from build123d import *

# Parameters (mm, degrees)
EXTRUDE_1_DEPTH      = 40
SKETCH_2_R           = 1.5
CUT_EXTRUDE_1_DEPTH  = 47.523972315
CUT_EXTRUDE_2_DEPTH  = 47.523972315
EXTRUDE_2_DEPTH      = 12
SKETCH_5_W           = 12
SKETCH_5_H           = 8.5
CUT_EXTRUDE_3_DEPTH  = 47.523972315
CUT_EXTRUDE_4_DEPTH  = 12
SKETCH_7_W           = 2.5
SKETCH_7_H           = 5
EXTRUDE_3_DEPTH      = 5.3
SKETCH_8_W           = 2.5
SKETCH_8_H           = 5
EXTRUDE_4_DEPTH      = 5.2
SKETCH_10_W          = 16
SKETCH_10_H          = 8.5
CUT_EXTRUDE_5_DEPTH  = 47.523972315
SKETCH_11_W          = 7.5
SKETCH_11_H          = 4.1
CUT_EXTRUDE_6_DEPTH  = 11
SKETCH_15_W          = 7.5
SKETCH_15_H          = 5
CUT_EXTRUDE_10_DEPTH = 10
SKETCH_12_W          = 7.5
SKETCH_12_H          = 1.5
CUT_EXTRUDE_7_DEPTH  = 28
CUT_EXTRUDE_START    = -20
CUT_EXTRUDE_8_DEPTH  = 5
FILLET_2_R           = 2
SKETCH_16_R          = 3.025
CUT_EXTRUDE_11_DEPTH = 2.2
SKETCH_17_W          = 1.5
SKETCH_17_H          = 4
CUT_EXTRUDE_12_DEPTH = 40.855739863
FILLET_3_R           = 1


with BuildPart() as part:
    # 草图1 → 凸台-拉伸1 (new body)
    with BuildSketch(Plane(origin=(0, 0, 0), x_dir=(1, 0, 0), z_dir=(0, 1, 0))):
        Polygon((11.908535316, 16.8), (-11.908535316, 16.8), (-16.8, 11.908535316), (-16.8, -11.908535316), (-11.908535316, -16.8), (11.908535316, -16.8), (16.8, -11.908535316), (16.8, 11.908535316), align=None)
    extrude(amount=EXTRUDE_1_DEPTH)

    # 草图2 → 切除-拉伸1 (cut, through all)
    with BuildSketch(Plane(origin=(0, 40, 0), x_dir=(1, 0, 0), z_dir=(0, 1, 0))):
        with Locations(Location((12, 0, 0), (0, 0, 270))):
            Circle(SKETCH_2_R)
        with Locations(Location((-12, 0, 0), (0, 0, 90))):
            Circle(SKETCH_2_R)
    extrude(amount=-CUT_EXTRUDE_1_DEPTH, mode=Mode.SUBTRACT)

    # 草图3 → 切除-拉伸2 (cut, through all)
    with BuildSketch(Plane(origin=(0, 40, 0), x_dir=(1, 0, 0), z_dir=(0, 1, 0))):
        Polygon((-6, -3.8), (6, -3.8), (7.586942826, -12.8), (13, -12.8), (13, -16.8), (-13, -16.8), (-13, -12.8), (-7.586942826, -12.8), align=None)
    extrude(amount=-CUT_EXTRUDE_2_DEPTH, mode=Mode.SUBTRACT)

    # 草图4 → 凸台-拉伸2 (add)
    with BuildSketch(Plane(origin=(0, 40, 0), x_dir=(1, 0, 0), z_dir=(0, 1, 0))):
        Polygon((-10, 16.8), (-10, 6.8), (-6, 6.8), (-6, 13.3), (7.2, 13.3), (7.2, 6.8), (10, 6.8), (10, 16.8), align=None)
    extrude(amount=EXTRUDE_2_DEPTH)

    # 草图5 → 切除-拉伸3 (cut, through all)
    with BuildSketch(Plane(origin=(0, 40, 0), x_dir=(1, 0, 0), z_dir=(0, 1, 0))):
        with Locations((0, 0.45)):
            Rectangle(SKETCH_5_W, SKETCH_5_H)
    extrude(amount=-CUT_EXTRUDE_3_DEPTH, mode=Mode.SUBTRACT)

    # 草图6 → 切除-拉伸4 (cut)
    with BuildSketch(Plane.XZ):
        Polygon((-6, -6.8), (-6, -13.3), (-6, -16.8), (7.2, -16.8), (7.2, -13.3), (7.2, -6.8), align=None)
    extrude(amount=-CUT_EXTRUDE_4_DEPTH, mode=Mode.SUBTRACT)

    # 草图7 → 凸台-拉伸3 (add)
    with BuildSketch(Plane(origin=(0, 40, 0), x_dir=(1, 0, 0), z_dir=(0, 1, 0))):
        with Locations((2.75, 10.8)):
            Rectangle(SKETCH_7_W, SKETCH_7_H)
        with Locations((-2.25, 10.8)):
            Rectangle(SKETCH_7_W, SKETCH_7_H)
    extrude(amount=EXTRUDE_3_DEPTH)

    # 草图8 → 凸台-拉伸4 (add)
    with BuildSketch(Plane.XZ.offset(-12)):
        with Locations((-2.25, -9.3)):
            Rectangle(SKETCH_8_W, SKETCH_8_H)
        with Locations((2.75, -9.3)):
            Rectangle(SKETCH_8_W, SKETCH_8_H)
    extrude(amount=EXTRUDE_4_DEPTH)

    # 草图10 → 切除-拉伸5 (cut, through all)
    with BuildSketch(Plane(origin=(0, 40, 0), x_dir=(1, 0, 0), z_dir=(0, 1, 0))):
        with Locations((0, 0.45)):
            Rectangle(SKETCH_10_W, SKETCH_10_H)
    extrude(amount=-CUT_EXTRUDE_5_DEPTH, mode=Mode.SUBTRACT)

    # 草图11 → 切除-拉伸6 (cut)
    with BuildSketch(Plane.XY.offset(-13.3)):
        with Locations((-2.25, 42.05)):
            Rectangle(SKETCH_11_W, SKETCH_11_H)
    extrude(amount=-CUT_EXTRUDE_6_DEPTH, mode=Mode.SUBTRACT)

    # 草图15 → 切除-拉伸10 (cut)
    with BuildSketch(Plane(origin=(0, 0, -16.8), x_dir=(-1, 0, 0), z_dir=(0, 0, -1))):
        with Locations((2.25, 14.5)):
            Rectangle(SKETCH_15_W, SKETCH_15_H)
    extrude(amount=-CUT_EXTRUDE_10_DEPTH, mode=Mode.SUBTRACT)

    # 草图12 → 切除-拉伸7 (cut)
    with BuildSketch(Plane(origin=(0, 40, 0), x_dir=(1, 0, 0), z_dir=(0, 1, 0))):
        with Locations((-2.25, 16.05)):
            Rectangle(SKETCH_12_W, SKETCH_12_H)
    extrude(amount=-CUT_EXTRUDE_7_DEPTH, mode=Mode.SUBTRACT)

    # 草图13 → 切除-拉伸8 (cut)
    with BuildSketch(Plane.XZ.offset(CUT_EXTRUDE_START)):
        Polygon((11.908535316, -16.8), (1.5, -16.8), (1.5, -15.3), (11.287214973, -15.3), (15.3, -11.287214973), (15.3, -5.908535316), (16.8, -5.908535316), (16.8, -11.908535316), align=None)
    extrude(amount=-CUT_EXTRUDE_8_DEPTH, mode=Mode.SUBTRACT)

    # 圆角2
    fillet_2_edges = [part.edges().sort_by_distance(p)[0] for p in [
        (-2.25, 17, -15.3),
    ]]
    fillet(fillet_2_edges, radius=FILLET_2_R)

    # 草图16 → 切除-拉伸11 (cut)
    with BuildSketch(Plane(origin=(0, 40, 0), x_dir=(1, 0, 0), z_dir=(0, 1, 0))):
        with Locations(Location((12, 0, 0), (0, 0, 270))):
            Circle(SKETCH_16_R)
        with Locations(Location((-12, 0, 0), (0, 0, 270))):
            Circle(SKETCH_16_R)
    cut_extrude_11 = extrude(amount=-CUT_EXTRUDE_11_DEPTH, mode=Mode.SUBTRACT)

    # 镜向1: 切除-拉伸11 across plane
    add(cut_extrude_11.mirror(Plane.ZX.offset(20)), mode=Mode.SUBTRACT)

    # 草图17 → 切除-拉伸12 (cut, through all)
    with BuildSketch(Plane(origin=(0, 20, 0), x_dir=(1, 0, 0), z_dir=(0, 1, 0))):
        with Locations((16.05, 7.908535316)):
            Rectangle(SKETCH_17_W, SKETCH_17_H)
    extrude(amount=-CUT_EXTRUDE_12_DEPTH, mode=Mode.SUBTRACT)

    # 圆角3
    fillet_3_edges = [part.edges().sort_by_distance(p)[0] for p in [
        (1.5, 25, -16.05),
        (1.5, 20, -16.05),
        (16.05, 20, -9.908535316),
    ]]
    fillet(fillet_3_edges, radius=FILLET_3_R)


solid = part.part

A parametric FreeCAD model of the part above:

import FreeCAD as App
import Part
import Sketcher
Q = App.Units.Quantity


def edges_at(feature, points):
    """Names of the edges that pass closest to the given points."""
    edges = feature.Shape.Edges
    near = lambda p: min(range(len(edges)), key=lambda i: edges[i].distToShape(Part.Vertex(*p))[0])
    return sorted({f"Edge{near(p) + 1}" for p in points})


def add_polygon(sketch, points):
    """Adds a closed chain of lines whose ends are joined by coincident constraints."""
    first, n = sketch.GeometryCount, len(points)
    for a, b in zip(points, points[1:] + points[:1]):
        sketch.addGeometry(Part.LineSegment(App.Vector(*a, 0), App.Vector(*b, 0)), False)
    for i in range(n):
        sketch.addConstraint(Sketcher.Constraint("Coincident", first + i, 2, first + (i + 1) % n, 1))

doc = App.newDocument("Part")
body = doc.addObject("PartDesign::Body", "Body")

sketch1 = body.newObject("Sketcher::SketchObject", "Sketch")
sketch1.AttachmentSupport = (doc.getObject("XZ_Plane"), [""])
sketch1.MapMode = "FlatFace"
add_polygon(sketch1, [(11.908535, -16.8), (-11.908535, -16.8), (-16.8, -11.908535), (-16.8, 11.908535), (-11.908535, 16.8), (11.908535, 16.8), (16.8, 11.908535), (16.8, -11.908535)])
sketch1.addConstraint([
    Sketcher.Constraint("Horizontal", 0),
    Sketcher.Constraint("Vertical", 2),
    Sketcher.Constraint("Horizontal", 4),
    Sketcher.Constraint("Vertical", 6),
    Sketcher.Constraint("Symmetric", 0, 2, 4, 2, -1, 1),
    Sketcher.Constraint("Symmetric", 1, 2, 5, 2, -1, 1),
    Sketcher.Constraint("Perpendicular", 1, 3),
    Sketcher.Constraint("Perpendicular", 5, 7),
    Sketcher.Constraint("Horizontal", 2, 2, 5, 2),
    Sketcher.Constraint("Horizontal", 1, 2, 6, 2),
    Sketcher.Constraint("Vertical", 0, 2, 3, 2),
    Sketcher.Constraint("Equal", 4, 2),
    Sketcher.Constraint("DistanceY", 0, 2, -1, 1, 16.8),
    Sketcher.Constraint("DistanceX", 0, 2, 0, 1, 23.817071),
])
pad1 = body.newObject("PartDesign::Pad", "Pad")
pad1.Profile = sketch1
pad1.Length = 40
pad1.Reversed = True

sketch2 = body.newObject("Sketcher::SketchObject", "Sketch001")
sketch2.AttachmentSupport = (doc.getObject("XZ_Plane"), [""])
sketch2.MapMode = "FlatFace"
sketch2.AttachmentOffset = App.Placement(App.Vector(0, 0, -40), App.Rotation())
sketch2.addGeometry([
    Part.Circle(App.Vector(12, 0, 0), App.Vector(0, 0, 1), 1.5),
    Part.Circle(App.Vector(-12, 0, 0), App.Vector(0, 0, 1), 1.5),
], False)
sketch2.addConstraint([
    Sketcher.Constraint("Equal", 0, 1),
    Sketcher.Constraint("Symmetric", 0, 3, 1, 3, -1, 1),
    Sketcher.Constraint("PointOnObject", 0, 3, -1),
    Sketcher.Constraint("Diameter", 0, 3.0),
    Sketcher.Constraint("DistanceX", -1, 1, 0, 3, 12.0),
])
pocket1 = body.newObject("PartDesign::Pocket", "Pocket")
pocket1.Profile = sketch2
pocket1.Type = "ThroughAll"
pocket1.Reversed = True

sketch3 = body.newObject("Sketcher::SketchObject", "Sketch002")
sketch3.AttachmentSupport = (doc.getObject("XZ_Plane"), [""])
sketch3.MapMode = "FlatFace"
sketch3.AttachmentOffset = App.Placement(App.Vector(0, 0, -40), App.Rotation())
add_polygon(sketch3, [(6, 3.8), (-6, 3.8), (-7.586943, 12.8), (-13, 12.8), (-13, 16.8), (13, 16.8), (13, 12.8), (7.586943, 12.8)])
sketch3.addConstraint([
    Sketcher.Constraint("Horizontal", 0),
    Sketcher.Constraint("Horizontal", 2),
    Sketcher.Constraint("Vertical", 3),
    Sketcher.Constraint("Horizontal", 4),
    Sketcher.Constraint("Vertical", 5),
    Sketcher.Constraint("Horizontal", 6),
    Sketcher.Constraint("Symmetric", 2, 2, 5, 2, -2),
    Sketcher.Constraint("Equal", 2, 6),
    Sketcher.Constraint("Equal", 1, 7),
    Sketcher.Constraint("DistanceX", 0, 2, 0, 1, 12.0),
    Sketcher.Constraint("DistanceX", 4, 1, 4, 2, 26.0),
    Sketcher.Constraint("DistanceY", 3, 1, 3, 2, 4.0),
    Sketcher.Constraint("Angle", 1, Q("100 deg")),
    Sketcher.Constraint("DistanceY", 0, 2, 1, 2, 9.0),
    Sketcher.Constraint("DistanceY", -1, 1, 0, 2, 3.8),
])
pocket2 = body.newObject("PartDesign::Pocket", "Pocket001")
pocket2.Profile = sketch3
pocket2.Type = "ThroughAll"
pocket2.Reversed = True

sketch4 = body.newObject("Sketcher::SketchObject", "Sketch003")
sketch4.AttachmentSupport = (doc.getObject("XZ_Plane"), [""])
sketch4.MapMode = "FlatFace"
sketch4.AttachmentOffset = App.Placement(App.Vector(0, 0, -40), App.Rotation())
add_polygon(sketch4, [(-10, -16.8), (-10, -6.8), (-6, -6.8), (-6, -13.3), (7.2, -13.3), (7.2, -6.8), (10, -6.8), (10, -16.8)])
sketch4.addConstraint([
    Sketcher.Constraint("Vertical", 0),
    Sketcher.Constraint("Horizontal", 1),
    Sketcher.Constraint("Vertical", 2),
    Sketcher.Constraint("Horizontal", 3),
    Sketcher.Constraint("Vertical", 4),
    Sketcher.Constraint("Horizontal", 5),
    Sketcher.Constraint("Vertical", 6),
    Sketcher.Constraint("Horizontal", 7),
    Sketcher.Constraint("Symmetric", 0, 2, 5, 2, -2),
    Sketcher.Constraint("DistanceX", 1, 1, 1, 2, 4.0),
    Sketcher.Constraint("DistanceX", 7, 2, 7, 1, 20.0),
    Sketcher.Constraint("DistanceY", 0, 1, 0, 2, 10.0),
    Sketcher.Constraint("DistanceX", 3, 1, 3, 2, 13.2),
    Sketcher.Constraint("DistanceY", 2, 2, 2, 1, 6.5),
    Sketcher.Constraint("DistanceY", 0, 2, -1, 1, 6.8),
])
pad2 = body.newObject("PartDesign::Pad", "Pad001")
pad2.Profile = sketch4
pad2.Length = 12
pad2.Reversed = True

sketch5 = body.newObject("Sketcher::SketchObject", "Sketch004")
sketch5.AttachmentSupport = (doc.getObject("XZ_Plane"), [""])
sketch5.MapMode = "FlatFace"
sketch5.AttachmentOffset = App.Placement(App.Vector(0, 0, -40), App.Rotation())
add_polygon(sketch5, [(-6, -4.7), (-6, 3.8), (6, 3.8), (6, -4.7)])
sketch5.addConstraint([
    Sketcher.Constraint("Vertical", 0),
    Sketcher.Constraint("Horizontal", 1),
    Sketcher.Constraint("Vertical", 2),
    Sketcher.Constraint("Horizontal", 3),
    Sketcher.Constraint("DistanceX", 1, 1, 1, 2, 12.0),
    Sketcher.Constraint("DistanceY", 0, 1, 0, 2, 8.5),
    Sketcher.Constraint("DistanceX", 0, 2, -1, 1, 6.0),
    Sketcher.Constraint("DistanceY", -1, 1, 0, 2, 3.8),
])
pocket3 = body.newObject("PartDesign::Pocket", "Pocket002")
pocket3.Profile = sketch5
pocket3.Type = "ThroughAll"
pocket3.Reversed = True

sketch6 = body.newObject("Sketcher::SketchObject", "Sketch005")
sketch6.AttachmentSupport = (doc.getObject("XZ_Plane"), [""])
sketch6.MapMode = "FlatFace"
add_polygon(sketch6, [(-6, -6.8), (-6, -16.8), (7.2, -16.8), (7.2, -6.8)])
sketch6.addConstraint([
    Sketcher.Constraint("Vertical", 0),
    Sketcher.Constraint("Horizontal", 1),
    Sketcher.Constraint("Vertical", 2),
    Sketcher.Constraint("Horizontal", 3),
    Sketcher.Constraint("DistanceY", 0, 2, 0, 1, 10.0),
    Sketcher.Constraint("DistanceX", 1, 1, 1, 2, 13.2),
    Sketcher.Constraint("DistanceX", 0, 2, -1, 1, 6.0),
    Sketcher.Constraint("DistanceY", 0, 2, -1, 1, 16.8),
])
pocket4 = body.newObject("PartDesign::Pocket", "Pocket003")
pocket4.Profile = sketch6
pocket4.Length = 12

sketch7 = body.newObject("Sketcher::SketchObject", "Sketch006")
sketch7.AttachmentSupport = (doc.getObject("XZ_Plane"), [""])
sketch7.MapMode = "FlatFace"
sketch7.AttachmentOffset = App.Placement(App.Vector(0, 0, -40), App.Rotation())
add_polygon(sketch7, [(1.5, -13.3), (1.5, -8.3), (4, -8.3), (4, -13.3)])
add_polygon(sketch7, [(-3.5, -13.3), (-3.5, -8.3), (-1, -8.3), (-1, -13.3)])
sketch7.addConstraint([
    Sketcher.Constraint("Vertical", 0),
    Sketcher.Constraint("Horizontal", 1),
    Sketcher.Constraint("Vertical", 2),
    Sketcher.Constraint("Horizontal", 3),
    Sketcher.Constraint("Vertical", 4),
    Sketcher.Constraint("Horizontal", 5),
    Sketcher.Constraint("Vertical", 6),
    Sketcher.Constraint("Horizontal", 7),
    Sketcher.Constraint("Horizontal", 1, 2, 4, 2),
    Sketcher.Constraint("Horizontal", 3, 2, 6, 2),
    Sketcher.Constraint("Equal", 3, 5),
    Sketcher.Constraint("DistanceY", 0, 1, 0, 2, 5.0),
    Sketcher.Constraint("DistanceX", 1, 1, 1, 2, 2.5),
    Sketcher.Constraint("DistanceX", -1, 1, 1, 2, 4.0),
    Sketcher.Constraint("DistanceX", 5, 2, -1, 1, 1.0),
    Sketcher.Constraint("DistanceY", 0, 2, -1, 1, 8.3),
])
pad3 = body.newObject("PartDesign::Pad", "Pad002")
pad3.Profile = sketch7
pad3.Length = 5.3
pad3.Reversed = True

sketch8 = body.newObject("Sketcher::SketchObject", "Sketch007")
sketch8.AttachmentSupport = (doc.getObject("XZ_Plane"), [""])
sketch8.MapMode = "FlatFace"
sketch8.AttachmentOffset = App.Placement(App.Vector(0, 0, -12), App.Rotation())
add_polygon(sketch8, [(-3.5, -6.8), (-3.5, -11.8), (-1, -11.8), (-1, -6.8)])
add_polygon(sketch8, [(1.5, -6.8), (1.5, -11.8), (4, -11.8), (4, -6.8)])
sketch8.addConstraint([
    Sketcher.Constraint("Vertical", 0),
    Sketcher.Constraint("Horizontal", 1),
    Sketcher.Constraint("Vertical", 2),
    Sketcher.Constraint("Horizontal", 3),
    Sketcher.Constraint("Vertical", 4),
    Sketcher.Constraint("Horizontal", 5),
    Sketcher.Constraint("Vertical", 6),
    Sketcher.Constraint("Horizontal", 7),
    Sketcher.Constraint("Horizontal", 1, 2, 4, 2),
    Sketcher.Constraint("Horizontal", 3, 2, 6, 2),
    Sketcher.Constraint("Equal", 3, 5),
    Sketcher.Constraint("DistanceY", 0, 2, 0, 1, 5.0),
    Sketcher.Constraint("DistanceX", 1, 1, 1, 2, 2.5),
    Sketcher.Constraint("DistanceX", 1, 2, -1, 1, 1.0),
    Sketcher.Constraint("DistanceX", -1, 1, 5, 2, 4.0),
    Sketcher.Constraint("DistanceY", 0, 2, -1, 1, 11.8),
])
pad4 = body.newObject("PartDesign::Pad", "Pad003")
pad4.Profile = sketch8
pad4.Length = 5.2

sketch9 = body.newObject("Sketcher::SketchObject", "Sketch008")
sketch9.AttachmentSupport = (doc.getObject("XZ_Plane"), [""])
sketch9.MapMode = "FlatFace"
sketch9.AttachmentOffset = App.Placement(App.Vector(0, 0, -40), App.Rotation())
add_polygon(sketch9, [(-8, -4.7), (-8, 3.8), (8, 3.8), (8, -4.7)])
sketch9.addConstraint([
    Sketcher.Constraint("Vertical", 0),
    Sketcher.Constraint("Horizontal", 1),
    Sketcher.Constraint("Vertical", 2),
    Sketcher.Constraint("Horizontal", 3),
    Sketcher.Constraint("DistanceX", 1, 1, 1, 2, 16.0),
    Sketcher.Constraint("DistanceY", 0, 1, 0, 2, 8.5),
    Sketcher.Constraint("DistanceX", 0, 2, -1, 1, 8.0),
    Sketcher.Constraint("DistanceY", -1, 1, 0, 2, 3.8),
])
pocket5 = body.newObject("PartDesign::Pocket", "Pocket004")
pocket5.Profile = sketch9
pocket5.Type = "ThroughAll"
pocket5.Reversed = True

sketch10 = body.newObject("Sketcher::SketchObject", "Sketch009")
sketch10.AttachmentSupport = (doc.getObject("XY_Plane"), [""])
sketch10.MapMode = "FlatFace"
sketch10.AttachmentOffset = App.Placement(App.Vector(0, 0, -13.3), App.Rotation())
add_polygon(sketch10, [(-6, 44.1), (-6, 40), (1.5, 40), (1.5, 44.1)])
sketch10.addConstraint([
    Sketcher.Constraint("Vertical", 0),
    Sketcher.Constraint("Horizontal", 1),
    Sketcher.Constraint("Vertical", 2),
    Sketcher.Constraint("Horizontal", 3),
    Sketcher.Constraint("DistanceX", 1, 1, 1, 2, 7.5),
    Sketcher.Constraint("DistanceY", 0, 2, 0, 1, 4.1),
    Sketcher.Constraint("DistanceX", 0, 2, -1, 1, 6.0),
    Sketcher.Constraint("DistanceY", -1, 1, 0, 2, 40.0),
])
pocket6 = body.newObject("PartDesign::Pocket", "Pocket005")
pocket6.Profile = sketch10
pocket6.Length = 11

sketch11 = body.newObject("Sketcher::SketchObject", "Sketch010")
sketch11.AttachmentSupport = (doc.getObject("XY_Plane"), [""])
sketch11.MapMode = "FlatFace"
sketch11.AttachmentOffset = App.Placement(App.Vector(0, 0, -16.8), App.Rotation())
add_polygon(sketch11, [(1.5, 17), (1.5, 12), (-6, 12), (-6, 17)])
sketch11.addConstraint([
    Sketcher.Constraint("Vertical", 0),
    Sketcher.Constraint("Horizontal", 1),
    Sketcher.Constraint("Vertical", 2),
    Sketcher.Constraint("Horizontal", 3),
    Sketcher.Constraint("DistanceY", 0, 2, 0, 1, 5.0),
    Sketcher.Constraint("DistanceX", 1, 2, 1, 1, 7.5),
    Sketcher.Constraint("DistanceY", -1, 1, 0, 2, 12.0),
    Sketcher.Constraint("DistanceX", 1, 2, -1, 1, 6.0),
])
pocket7 = body.newObject("PartDesign::Pocket", "Pocket006")
pocket7.Profile = sketch11
pocket7.Length = 10
pocket7.Reversed = True

sketch12 = body.newObject("Sketcher::SketchObject", "Sketch011")
sketch12.AttachmentSupport = (doc.getObject("XZ_Plane"), [""])
sketch12.MapMode = "FlatFace"
sketch12.AttachmentOffset = App.Placement(App.Vector(0, 0, -40), App.Rotation())
add_polygon(sketch12, [(-6, -16.8), (-6, -15.3), (1.5, -15.3), (1.5, -16.8)])
sketch12.addConstraint([
    Sketcher.Constraint("Vertical", 0),
    Sketcher.Constraint("Horizontal", 1),
    Sketcher.Constraint("Vertical", 2),
    Sketcher.Constraint("Horizontal", 3),
    Sketcher.Constraint("DistanceX", 1, 1, 1, 2, 7.5),
    Sketcher.Constraint("DistanceY", 0, 1, 0, 2, 1.5),
    Sketcher.Constraint("DistanceX", 0, 2, -1, 1, 6.0),
    Sketcher.Constraint("DistanceY", 0, 2, -1, 1, 15.3),
])
pocket8 = body.newObject("PartDesign::Pocket", "Pocket007")
pocket8.Profile = sketch12
pocket8.Length = 28
pocket8.Reversed = True

sketch13 = body.newObject("Sketcher::SketchObject", "Sketch012")
sketch13.AttachmentSupport = (doc.getObject("XZ_Plane"), [""])
sketch13.MapMode = "FlatFace"
sketch13.AttachmentOffset = App.Placement(App.Vector(0, 0, -20), App.Rotation())
add_polygon(sketch13, [(1.5, -16.8), (11.908535, -16.8), (16.8, -11.908535), (16.8, -5.908535), (15.3, -5.908535), (15.3, -11.287215), (11.287215, -15.3), (1.5, -15.3)])
sketch13.addConstraint([
    Sketcher.Constraint("Horizontal", 0),
    Sketcher.Constraint("Vertical", 2),
    Sketcher.Constraint("Horizontal", 3),
    Sketcher.Constraint("Vertical", 4),
    Sketcher.Constraint("Horizontal", 6),
    Sketcher.Constraint("Vertical", 7),
    Sketcher.Constraint("Parallel", 1, 5),
    Sketcher.Constraint("Equal", 3, 7),
    Sketcher.Constraint("DistanceY", 2, 1, 2, 2, 6.0),
    Sketcher.Constraint("Angle", 1, Q("45 deg")),
    Sketcher.Constraint("DistanceX", 3, 2, 3, 1, 1.5),
    Sketcher.Constraint("DistanceY", 0, 2, -1, 1, 16.8),
    Sketcher.Constraint("DistanceX", -1, 1, 1, 2, 16.8),
    Sketcher.Constraint("DistanceX", -1, 1, 6, 2, 1.5),
    Sketcher.Constraint("DistanceY", 4, 2, 4, 1, 5.37868),
    Sketcher.Constraint("DistanceX", 0, 1, 0, 2, 10.408535),
])
pocket9 = body.newObject("PartDesign::Pocket", "Pocket008")
pocket9.Profile = sketch13
pocket9.Length = 5
doc.recompute()

fillet = body.newObject("PartDesign::Fillet", "Fillet")
fillet.Base = (pocket9, edges_at(pocket9, [(-2.25, 17, -15.3)]))
fillet.Radius = 2

sketch14 = body.newObject("Sketcher::SketchObject", "Sketch013")
sketch14.AttachmentSupport = (doc.getObject("XZ_Plane"), [""])
sketch14.MapMode = "FlatFace"
sketch14.AttachmentOffset = App.Placement(App.Vector(0, 0, -40), App.Rotation())
sketch14.addGeometry([
    Part.Circle(App.Vector(12, 0, 0), App.Vector(0, 0, 1), 3.025),
    Part.Circle(App.Vector(-12, 0, 0), App.Vector(0, 0, 1), 3.025),
], False)
sketch14.addConstraint([
    Sketcher.Constraint("Equal", 0, 1),
    Sketcher.Constraint("Symmetric", 0, 3, 1, 3, -1, 1),
    Sketcher.Constraint("PointOnObject", 0, 3, -1),
    Sketcher.Constraint("Diameter", 0, 6.05),
    Sketcher.Constraint("DistanceX", -1, 1, 0, 3, 12.0),
])
pocket10 = body.newObject("PartDesign::Pocket", "Pocket009")
pocket10.Profile = sketch14
pocket10.Length = 2.2
pocket10.Reversed = True
doc.recompute()

datumplane = body.newObject("PartDesign::Plane", "DatumPlane")
datumplane.AttachmentSupport = (doc.getObject("XZ_Plane"), [""])
datumplane.MapMode = "FlatFace"
datumplane.AttachmentOffset = App.Placement(App.Vector(0, 0, -20), App.Rotation())
mirrored = body.newObject("PartDesign::Mirrored", "Mirrored")
mirrored.Originals = [pocket10]
mirrored.MirrorPlane = (datumplane, [""])
body.Tip = mirrored

sketch15 = body.newObject("Sketcher::SketchObject", "Sketch014")
sketch15.AttachmentSupport = (doc.getObject("XZ_Plane"), [""])
sketch15.MapMode = "FlatFace"
sketch15.AttachmentOffset = App.Placement(App.Vector(0, 0, -20), App.Rotation())
add_polygon(sketch15, [(15.3, -9.908535), (15.3, -5.908535), (16.8, -5.908535), (16.8, -9.908535)])
sketch15.addConstraint([
    Sketcher.Constraint("Vertical", 0),
    Sketcher.Constraint("Horizontal", 1),
    Sketcher.Constraint("Vertical", 2),
    Sketcher.Constraint("Horizontal", 3),
    Sketcher.Constraint("DistanceY", 0, 1, 0, 2, 4.0),
    Sketcher.Constraint("DistanceX", 1, 1, 1, 2, 1.5),
    Sketcher.Constraint("DistanceX", -1, 1, 0, 2, 15.3),
    Sketcher.Constraint("DistanceY", 0, 2, -1, 1, 5.908535),
])
pocket11 = body.newObject("PartDesign::Pocket", "Pocket010")
pocket11.Profile = sketch15
pocket11.Type = "ThroughAll"
pocket11.Reversed = True
doc.recompute()

fillet2 = body.newObject("PartDesign::Fillet", "Fillet001")
fillet2.Base = (pocket11, edges_at(pocket11, [(1.5, 25, -16.05), (1.5, 20, -16.05), (16.05, 20, -9.909)]))
fillet2.Radius = 1

doc.recompute()
